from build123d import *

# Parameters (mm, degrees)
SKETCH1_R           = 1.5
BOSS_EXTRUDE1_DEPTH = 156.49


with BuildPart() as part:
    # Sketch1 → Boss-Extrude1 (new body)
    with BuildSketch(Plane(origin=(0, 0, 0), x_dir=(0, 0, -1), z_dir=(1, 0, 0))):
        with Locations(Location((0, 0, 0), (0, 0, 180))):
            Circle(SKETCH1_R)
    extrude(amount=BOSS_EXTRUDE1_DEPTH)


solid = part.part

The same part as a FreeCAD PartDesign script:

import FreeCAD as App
import Part
import Sketcher
from FreeCAD import Vector

doc = App.newDocument("Part")
body = doc.addObject("PartDesign::Body", "Body")

# Sketch on YZ plane
sketch1 = body.newObject("Sketcher::SketchObject", "Sketch")
sketch1.AttachmentSupport = (doc.getObject("YZ_Plane"), [""])
sketch1.MapMode = "FlatFace"
sketch1.addGeometry(Part.Circle(Vector(0, 0, 0), Vector(0, 0, 1), 1.5), False)
sketch1.addConstraint(Sketcher.Constraint("Coincident", 0, 3, -1, 1))
sketch1.addConstraint(Sketcher.Constraint("Diameter", 0, 3.0))
pad1 = body.newObject("PartDesign::Pad", "Pad")
pad1.Profile = sketch1
pad1.Length = 156.49

doc.recompute()
